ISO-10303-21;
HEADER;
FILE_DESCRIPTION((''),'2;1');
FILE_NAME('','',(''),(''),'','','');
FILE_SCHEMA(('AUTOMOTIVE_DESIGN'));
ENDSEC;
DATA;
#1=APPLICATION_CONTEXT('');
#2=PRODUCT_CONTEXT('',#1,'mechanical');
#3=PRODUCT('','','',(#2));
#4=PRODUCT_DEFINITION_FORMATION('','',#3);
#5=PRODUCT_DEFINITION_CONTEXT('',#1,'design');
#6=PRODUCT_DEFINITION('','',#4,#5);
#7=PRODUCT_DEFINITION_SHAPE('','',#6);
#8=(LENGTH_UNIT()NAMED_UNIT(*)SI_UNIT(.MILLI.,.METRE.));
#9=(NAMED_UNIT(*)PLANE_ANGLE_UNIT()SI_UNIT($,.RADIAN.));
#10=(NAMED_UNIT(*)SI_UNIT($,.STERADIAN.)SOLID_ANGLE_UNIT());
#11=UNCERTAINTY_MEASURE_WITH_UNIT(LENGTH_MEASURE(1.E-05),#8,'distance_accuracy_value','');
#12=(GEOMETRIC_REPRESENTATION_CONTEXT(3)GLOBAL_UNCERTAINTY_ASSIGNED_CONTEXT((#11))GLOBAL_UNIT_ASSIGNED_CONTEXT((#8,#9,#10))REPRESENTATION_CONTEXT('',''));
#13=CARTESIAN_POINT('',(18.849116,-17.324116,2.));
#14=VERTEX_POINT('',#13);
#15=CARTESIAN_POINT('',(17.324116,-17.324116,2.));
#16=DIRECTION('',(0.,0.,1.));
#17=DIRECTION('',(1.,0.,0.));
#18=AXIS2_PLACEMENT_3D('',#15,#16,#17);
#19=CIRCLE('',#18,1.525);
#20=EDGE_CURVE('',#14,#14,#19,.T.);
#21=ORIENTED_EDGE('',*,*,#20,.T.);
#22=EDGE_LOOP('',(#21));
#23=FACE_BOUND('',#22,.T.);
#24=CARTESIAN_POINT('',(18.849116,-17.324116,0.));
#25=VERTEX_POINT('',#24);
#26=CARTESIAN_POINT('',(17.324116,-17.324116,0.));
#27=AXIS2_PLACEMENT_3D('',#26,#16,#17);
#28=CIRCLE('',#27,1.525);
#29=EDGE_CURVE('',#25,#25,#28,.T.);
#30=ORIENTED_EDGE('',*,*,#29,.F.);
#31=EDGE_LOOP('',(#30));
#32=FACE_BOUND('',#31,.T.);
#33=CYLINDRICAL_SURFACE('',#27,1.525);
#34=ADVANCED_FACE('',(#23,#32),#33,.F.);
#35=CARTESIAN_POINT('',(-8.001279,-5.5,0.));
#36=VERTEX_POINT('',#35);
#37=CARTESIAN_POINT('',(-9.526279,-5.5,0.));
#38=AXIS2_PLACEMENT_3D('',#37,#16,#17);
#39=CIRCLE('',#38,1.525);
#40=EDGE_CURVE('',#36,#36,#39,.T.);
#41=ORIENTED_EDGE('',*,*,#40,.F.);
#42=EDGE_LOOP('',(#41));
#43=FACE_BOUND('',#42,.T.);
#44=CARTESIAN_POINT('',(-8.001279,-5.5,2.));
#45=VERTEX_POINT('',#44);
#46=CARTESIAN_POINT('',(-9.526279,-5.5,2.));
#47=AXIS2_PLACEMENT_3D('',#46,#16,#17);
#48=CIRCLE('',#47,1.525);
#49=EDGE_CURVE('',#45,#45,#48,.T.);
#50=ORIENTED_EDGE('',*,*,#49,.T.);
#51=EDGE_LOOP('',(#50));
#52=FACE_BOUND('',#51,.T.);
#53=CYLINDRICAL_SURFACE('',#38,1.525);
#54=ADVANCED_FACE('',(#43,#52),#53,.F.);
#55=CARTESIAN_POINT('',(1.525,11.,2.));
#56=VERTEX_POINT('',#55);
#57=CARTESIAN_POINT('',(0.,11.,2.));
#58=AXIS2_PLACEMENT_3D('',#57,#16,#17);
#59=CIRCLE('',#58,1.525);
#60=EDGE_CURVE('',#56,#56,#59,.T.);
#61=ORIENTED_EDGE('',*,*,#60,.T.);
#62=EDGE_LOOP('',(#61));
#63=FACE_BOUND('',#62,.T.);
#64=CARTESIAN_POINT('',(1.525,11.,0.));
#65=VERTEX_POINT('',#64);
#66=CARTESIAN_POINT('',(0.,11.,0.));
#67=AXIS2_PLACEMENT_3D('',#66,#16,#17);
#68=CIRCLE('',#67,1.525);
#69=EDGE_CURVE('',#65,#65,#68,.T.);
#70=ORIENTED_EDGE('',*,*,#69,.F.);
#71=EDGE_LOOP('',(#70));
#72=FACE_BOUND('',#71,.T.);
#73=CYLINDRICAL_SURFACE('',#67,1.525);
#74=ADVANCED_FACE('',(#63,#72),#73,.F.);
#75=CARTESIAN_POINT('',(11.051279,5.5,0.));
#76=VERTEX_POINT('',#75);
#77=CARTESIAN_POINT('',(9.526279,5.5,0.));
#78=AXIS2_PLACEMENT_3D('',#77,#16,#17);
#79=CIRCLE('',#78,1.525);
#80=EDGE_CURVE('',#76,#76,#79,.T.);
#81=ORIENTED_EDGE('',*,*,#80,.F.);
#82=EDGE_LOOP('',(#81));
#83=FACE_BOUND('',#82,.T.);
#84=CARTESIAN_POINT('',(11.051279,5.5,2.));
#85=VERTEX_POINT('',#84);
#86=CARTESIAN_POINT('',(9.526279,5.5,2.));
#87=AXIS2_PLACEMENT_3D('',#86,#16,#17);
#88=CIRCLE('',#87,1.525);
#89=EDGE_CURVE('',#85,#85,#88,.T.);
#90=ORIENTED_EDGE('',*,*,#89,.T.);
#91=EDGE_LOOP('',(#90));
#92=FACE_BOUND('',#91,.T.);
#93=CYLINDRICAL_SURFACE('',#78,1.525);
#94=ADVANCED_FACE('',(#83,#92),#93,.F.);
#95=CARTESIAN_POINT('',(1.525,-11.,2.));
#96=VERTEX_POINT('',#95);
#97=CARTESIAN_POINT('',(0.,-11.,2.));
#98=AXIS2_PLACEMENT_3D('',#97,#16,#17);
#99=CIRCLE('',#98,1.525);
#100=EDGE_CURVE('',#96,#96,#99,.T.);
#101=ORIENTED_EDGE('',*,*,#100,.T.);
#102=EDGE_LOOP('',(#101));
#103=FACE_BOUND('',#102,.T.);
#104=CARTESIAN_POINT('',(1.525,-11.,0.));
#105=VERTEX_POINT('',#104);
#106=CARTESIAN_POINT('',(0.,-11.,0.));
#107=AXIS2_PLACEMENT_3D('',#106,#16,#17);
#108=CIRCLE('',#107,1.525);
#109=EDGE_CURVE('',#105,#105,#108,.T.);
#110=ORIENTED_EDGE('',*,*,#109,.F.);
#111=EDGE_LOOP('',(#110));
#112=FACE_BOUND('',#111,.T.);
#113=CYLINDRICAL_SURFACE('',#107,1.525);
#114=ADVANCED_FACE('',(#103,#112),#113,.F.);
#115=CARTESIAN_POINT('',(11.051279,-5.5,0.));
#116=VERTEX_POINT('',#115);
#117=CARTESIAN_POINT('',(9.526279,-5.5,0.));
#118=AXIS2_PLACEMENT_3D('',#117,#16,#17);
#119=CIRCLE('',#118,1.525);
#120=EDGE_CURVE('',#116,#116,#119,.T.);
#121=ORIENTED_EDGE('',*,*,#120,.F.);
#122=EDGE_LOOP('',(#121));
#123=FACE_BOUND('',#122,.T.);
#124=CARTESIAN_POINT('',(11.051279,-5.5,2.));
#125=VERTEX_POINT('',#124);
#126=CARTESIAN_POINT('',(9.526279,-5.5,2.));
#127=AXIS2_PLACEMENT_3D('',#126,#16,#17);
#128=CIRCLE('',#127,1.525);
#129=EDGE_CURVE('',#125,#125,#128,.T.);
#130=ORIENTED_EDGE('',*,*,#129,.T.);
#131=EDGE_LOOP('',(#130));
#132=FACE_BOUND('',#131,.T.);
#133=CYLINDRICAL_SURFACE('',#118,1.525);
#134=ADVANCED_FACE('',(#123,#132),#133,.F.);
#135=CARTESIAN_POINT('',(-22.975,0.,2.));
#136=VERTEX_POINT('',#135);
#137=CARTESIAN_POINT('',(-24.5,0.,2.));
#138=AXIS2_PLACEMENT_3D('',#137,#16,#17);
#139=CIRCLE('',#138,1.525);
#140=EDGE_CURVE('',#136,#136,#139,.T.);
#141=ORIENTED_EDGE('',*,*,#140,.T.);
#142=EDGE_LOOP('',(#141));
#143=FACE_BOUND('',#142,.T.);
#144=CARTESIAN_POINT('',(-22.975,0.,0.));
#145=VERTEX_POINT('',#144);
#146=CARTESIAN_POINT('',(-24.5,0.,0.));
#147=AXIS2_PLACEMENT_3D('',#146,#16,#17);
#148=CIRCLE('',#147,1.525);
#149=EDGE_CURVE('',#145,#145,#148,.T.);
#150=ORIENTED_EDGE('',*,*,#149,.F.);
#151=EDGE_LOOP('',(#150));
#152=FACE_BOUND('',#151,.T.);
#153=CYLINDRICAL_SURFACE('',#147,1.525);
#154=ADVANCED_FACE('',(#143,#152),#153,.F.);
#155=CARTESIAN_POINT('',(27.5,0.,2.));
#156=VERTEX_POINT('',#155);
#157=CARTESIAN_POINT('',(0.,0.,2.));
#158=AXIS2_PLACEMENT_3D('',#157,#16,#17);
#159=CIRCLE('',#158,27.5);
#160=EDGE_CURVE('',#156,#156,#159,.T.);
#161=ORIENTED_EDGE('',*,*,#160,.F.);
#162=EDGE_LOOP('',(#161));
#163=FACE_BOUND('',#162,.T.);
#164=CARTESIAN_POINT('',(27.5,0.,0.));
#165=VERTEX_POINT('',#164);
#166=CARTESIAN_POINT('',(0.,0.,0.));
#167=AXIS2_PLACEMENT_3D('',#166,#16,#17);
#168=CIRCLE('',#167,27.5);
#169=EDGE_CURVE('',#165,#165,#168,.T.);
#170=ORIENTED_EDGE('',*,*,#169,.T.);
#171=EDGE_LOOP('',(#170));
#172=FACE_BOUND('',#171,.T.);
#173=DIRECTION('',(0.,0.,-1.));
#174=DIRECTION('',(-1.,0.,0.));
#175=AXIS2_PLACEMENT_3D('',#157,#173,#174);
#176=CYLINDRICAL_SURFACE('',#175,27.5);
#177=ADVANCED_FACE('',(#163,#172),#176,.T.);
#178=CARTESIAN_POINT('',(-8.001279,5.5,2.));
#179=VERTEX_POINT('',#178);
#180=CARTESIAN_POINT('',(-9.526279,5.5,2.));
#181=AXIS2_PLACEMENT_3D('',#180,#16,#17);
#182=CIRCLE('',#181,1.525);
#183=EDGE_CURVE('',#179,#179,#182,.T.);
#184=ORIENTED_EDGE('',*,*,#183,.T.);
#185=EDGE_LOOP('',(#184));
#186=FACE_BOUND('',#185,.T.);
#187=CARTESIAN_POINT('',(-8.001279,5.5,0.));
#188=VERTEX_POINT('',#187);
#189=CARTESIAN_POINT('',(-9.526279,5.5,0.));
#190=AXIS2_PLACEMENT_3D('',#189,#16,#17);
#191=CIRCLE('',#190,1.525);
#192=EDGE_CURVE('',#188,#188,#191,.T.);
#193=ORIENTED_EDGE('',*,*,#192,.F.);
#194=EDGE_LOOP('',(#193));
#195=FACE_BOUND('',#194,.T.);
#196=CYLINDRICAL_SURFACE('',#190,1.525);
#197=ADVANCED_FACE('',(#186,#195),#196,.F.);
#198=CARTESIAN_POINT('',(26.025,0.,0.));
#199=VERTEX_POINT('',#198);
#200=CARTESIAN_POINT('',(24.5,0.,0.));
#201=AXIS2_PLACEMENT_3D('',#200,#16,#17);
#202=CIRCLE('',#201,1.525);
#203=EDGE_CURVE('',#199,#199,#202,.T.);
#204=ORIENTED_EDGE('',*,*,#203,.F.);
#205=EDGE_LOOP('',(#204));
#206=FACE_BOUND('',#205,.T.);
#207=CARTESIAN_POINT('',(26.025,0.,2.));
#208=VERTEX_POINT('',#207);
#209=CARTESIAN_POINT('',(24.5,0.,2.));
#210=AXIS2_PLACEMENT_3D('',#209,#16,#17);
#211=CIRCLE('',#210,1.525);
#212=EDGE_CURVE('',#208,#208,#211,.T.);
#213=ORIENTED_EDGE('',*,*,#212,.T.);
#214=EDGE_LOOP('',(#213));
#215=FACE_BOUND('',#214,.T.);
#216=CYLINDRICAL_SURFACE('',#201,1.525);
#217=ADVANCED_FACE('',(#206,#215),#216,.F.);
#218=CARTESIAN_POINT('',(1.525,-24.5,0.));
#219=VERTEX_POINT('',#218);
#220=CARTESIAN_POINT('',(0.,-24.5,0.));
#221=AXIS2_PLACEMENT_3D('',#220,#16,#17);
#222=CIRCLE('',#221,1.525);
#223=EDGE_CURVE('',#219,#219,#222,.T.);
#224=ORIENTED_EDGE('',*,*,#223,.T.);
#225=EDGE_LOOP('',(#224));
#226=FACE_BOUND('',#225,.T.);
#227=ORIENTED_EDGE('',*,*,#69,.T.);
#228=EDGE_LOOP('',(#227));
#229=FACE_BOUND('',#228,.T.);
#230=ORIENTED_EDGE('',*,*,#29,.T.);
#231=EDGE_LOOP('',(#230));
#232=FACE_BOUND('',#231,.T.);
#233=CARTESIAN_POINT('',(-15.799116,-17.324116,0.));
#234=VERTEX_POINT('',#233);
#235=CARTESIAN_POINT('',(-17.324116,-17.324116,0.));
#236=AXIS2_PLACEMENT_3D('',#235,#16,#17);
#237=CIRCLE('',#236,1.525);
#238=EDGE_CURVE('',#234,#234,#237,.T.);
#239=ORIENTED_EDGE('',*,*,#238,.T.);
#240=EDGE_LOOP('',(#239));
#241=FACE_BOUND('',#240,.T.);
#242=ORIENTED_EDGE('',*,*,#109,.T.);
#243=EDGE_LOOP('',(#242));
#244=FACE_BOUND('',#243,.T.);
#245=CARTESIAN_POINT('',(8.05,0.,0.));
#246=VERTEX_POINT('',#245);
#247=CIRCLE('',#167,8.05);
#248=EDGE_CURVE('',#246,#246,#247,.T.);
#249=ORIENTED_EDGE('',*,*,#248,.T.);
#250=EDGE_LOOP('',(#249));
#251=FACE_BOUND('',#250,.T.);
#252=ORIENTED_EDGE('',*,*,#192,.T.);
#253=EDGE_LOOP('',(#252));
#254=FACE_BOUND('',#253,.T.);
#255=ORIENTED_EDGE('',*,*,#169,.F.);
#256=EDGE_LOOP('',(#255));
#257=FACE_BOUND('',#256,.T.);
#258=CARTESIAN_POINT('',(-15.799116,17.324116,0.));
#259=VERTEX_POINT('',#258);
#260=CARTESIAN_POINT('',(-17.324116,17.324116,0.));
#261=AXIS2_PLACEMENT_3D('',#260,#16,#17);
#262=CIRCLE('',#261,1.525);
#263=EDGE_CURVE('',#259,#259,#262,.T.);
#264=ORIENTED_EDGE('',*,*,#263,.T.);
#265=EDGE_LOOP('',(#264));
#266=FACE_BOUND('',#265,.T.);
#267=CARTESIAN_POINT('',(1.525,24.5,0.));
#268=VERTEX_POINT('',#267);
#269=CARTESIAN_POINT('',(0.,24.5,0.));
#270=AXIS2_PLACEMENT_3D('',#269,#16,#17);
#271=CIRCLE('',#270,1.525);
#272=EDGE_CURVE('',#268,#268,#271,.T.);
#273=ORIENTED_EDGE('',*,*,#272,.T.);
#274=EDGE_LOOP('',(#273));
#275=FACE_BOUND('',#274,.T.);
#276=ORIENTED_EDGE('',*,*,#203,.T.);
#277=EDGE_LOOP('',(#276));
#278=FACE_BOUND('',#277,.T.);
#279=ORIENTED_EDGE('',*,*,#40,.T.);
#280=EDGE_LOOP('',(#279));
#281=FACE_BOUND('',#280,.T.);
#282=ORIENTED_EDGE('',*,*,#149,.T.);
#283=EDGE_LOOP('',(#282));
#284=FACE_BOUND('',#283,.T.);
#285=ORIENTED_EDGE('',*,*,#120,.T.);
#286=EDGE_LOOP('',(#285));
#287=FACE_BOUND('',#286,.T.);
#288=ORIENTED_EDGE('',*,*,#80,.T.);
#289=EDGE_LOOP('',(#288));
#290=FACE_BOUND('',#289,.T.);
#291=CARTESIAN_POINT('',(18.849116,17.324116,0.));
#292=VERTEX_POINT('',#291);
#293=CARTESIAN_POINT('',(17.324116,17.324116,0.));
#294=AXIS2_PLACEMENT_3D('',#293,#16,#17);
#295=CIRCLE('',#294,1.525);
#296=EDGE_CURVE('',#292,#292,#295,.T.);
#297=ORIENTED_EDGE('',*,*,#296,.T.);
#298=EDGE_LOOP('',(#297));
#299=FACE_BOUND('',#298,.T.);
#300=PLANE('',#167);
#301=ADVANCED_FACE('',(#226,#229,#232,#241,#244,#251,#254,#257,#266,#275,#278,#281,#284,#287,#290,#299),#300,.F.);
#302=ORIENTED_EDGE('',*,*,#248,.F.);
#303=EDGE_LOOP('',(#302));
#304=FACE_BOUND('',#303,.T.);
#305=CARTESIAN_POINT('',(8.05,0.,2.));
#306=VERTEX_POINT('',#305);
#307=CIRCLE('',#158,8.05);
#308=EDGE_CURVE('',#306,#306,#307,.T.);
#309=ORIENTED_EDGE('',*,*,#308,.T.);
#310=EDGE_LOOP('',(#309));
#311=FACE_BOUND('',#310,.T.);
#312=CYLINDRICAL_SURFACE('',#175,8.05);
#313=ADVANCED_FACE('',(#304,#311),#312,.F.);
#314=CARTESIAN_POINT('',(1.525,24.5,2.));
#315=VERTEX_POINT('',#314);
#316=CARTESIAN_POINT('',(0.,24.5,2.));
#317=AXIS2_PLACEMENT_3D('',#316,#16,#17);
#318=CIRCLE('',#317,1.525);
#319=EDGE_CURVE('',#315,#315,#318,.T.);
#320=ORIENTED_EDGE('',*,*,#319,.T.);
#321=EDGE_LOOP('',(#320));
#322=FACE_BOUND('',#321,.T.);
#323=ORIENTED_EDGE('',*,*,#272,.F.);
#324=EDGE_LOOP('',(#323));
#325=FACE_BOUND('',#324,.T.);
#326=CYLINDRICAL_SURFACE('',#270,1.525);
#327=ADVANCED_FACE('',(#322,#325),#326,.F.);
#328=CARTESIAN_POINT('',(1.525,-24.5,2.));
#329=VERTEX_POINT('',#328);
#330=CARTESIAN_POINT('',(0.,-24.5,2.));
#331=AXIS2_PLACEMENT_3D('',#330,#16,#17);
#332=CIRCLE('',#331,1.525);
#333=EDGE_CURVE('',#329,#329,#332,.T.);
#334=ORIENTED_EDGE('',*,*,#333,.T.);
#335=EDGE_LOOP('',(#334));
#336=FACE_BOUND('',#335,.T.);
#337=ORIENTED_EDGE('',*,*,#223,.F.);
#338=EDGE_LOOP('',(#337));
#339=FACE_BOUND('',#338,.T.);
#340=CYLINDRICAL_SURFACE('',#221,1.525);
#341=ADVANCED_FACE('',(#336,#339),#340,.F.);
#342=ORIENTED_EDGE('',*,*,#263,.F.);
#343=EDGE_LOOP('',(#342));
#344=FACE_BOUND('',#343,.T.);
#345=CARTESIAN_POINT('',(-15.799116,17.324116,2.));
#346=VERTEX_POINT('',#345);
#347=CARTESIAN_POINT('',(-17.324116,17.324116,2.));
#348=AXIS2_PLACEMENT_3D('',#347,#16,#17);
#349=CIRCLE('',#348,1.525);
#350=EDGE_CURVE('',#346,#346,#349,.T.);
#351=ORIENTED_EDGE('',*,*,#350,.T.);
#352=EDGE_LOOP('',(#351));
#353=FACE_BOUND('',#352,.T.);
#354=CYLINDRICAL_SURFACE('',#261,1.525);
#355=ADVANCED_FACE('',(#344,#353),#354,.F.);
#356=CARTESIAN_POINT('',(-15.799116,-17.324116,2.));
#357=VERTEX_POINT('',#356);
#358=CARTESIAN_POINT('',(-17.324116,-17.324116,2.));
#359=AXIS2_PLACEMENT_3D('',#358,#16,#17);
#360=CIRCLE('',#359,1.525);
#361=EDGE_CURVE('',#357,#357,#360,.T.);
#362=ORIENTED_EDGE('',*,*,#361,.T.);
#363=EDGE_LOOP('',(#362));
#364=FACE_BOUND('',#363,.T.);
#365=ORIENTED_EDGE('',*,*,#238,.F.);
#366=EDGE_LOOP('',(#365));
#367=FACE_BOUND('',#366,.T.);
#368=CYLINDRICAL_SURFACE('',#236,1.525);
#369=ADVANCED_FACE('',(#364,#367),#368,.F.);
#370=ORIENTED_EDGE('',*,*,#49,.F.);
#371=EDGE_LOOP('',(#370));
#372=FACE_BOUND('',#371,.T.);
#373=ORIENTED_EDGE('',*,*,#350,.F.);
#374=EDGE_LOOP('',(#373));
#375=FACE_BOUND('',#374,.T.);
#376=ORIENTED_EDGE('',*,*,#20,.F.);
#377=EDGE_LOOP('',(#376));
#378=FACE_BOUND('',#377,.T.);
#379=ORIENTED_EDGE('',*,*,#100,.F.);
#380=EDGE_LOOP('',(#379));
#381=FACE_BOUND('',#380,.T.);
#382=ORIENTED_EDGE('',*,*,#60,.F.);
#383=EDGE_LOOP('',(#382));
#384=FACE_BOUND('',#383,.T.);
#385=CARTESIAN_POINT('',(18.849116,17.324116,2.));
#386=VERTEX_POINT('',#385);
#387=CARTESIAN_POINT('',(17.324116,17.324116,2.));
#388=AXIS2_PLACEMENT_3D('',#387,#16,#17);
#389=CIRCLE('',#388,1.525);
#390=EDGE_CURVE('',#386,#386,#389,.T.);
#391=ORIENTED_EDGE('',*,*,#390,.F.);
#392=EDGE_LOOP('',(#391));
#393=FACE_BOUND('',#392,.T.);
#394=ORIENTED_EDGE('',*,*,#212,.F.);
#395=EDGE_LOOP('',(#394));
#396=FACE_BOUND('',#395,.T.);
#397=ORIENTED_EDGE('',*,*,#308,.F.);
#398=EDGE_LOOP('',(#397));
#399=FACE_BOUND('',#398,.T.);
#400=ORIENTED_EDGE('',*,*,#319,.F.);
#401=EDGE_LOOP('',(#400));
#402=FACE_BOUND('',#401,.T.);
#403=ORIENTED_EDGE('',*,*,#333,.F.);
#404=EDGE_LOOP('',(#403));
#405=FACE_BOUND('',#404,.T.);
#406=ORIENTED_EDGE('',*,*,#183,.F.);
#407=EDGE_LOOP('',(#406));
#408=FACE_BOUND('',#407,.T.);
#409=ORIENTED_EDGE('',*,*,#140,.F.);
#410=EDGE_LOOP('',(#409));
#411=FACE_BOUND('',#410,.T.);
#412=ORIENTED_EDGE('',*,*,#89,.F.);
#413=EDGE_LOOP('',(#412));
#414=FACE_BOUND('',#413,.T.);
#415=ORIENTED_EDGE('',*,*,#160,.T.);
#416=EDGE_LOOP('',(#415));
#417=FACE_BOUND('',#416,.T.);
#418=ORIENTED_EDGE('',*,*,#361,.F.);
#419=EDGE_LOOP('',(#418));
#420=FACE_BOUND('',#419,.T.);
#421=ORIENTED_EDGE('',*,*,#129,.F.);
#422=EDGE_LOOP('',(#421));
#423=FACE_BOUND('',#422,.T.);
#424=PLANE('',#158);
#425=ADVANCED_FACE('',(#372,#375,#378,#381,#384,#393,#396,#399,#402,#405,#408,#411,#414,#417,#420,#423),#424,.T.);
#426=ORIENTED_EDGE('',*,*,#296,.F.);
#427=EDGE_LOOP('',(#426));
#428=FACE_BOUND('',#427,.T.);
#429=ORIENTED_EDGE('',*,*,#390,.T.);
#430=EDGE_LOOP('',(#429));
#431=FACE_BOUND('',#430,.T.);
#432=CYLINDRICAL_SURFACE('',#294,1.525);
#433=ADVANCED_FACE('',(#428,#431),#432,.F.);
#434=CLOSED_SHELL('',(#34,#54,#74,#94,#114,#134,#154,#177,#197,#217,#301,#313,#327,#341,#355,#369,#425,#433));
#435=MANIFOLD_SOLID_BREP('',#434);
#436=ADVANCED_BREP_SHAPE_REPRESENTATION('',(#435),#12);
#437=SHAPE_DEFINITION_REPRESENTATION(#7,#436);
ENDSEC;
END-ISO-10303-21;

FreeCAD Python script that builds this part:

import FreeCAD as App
import Part
import Sketcher
from FreeCAD import Vector

doc = App.newDocument("Part")
body = doc.addObject("PartDesign::Body", "Body")

# Sketch on XY plane
sketch1 = body.newObject("Sketcher::SketchObject", "Sketch")
sketch1.AttachmentSupport = (doc.getObject("XY_Plane"), [""])
sketch1.MapMode = "FlatFace"
sketch1.addGeometry(Part.Circle(Vector(0, 0, 0), Vector(0, 0, 1), 28), False)
sketch1.addGeometry(Part.Circle(Vector(0, 0, 0), Vector(0, 0, 1), 8), False)
sketch1.addConstraint(Sketcher.Constraint("Coincident", 0, 3, -1, 1))
sketch1.addConstraint(Sketcher.Constraint("Coincident", 1, 3, -1, 1))
sketch1.addConstraint(Sketcher.Constraint("Diameter", 0, 55.0))
sketch1.addConstraint(Sketcher.Constraint("Diameter", 1, 16.1))
pad1 = body.newObject("PartDesign::Pad", "Pad")
pad1.Profile = sketch1
pad1.Length = 2

# Sketch on XY plane
sketch2 = body.newObject("Sketcher::SketchObject", "Sketch001")
sketch2.AttachmentSupport = (doc.getObject("XY_Plane"), [""])
sketch2.MapMode = "FlatFace"
sketch2.AttachmentOffset = App.Placement(Vector(0, 0, 2), App.Rotation())
sketch2.addGeometry(Part.Circle(Vector(0, 11, 0), Vector(0, 0, 1), 1.5), False)
sketch2.addGeometry(Part.Circle(Vector(9.5, 5.5, 0), Vector(0, 0, 1), 1.5), False)
sketch2.addGeometry(Part.Circle(Vector(9.5, -5.5, 0), Vector(0, 0, 1), 1.5), False)
sketch2.addGeometry(Part.Circle(Vector(0, -11, 0), Vector(0, 0, 1), 1.5), False)
sketch2.addGeometry(Part.Circle(Vector(-9.5, -5.5, 0), Vector(0, 0, 1), 1.5), False)
sketch2.addGeometry(Part.Circle(Vector(-9.5, 5.5, 0), Vector(0, 0, 1), 1.5), False)
sketch2.addConstraint(Sketcher.Constraint("Equal", 0, 1))
sketch2.addConstraint(Sketcher.Constraint("Equal", 1, 2))
sketch2.addConstraint(Sketcher.Constraint("Equal", 2, 3))
sketch2.addConstraint(Sketcher.Constraint("Equal", 3, 4))
sketch2.addConstraint(Sketcher.Constraint("Equal", 4, 5))
sketch2.addConstraint(Sketcher.Constraint("Symmetric", 0, 3, 3, 3, -1, 1))
sketch2.addConstraint(Sketcher.Constraint("Symmetric", 1, 3, 4, 3, -1, 1))
sketch2.addConstraint(Sketcher.Constraint("Symmetric", 2, 3, 5, 3, -1, 1))
sketch2.addConstraint(Sketcher.Constraint("Symmetric", 2, 3, 4, 3, -2))
sketch2.addConstraint(Sketcher.Constraint("PointOnObject", 0, 3, -2))
sketch2.addConstraint(Sketcher.Constraint("Diameter", 0, 3.05))
sketch2.addConstraint(Sketcher.Constraint("DistanceY", -1, 1, 0, 3, 11.0))
sketch2.addConstraint(Sketcher.Constraint("DistanceY", 2, 3, 1, 3, 11.0))
sketch2.addConstraint(Sketcher.Constraint("DistanceX", -1, 1, 1, 3, 9.526279))
pocket1 = body.newObject("PartDesign::Pocket", "Pocket")
pocket1.Profile = sketch2
pocket1.Length = 2

# Sketch on XY plane
sketch3 = body.newObject("Sketcher::SketchObject", "Sketch002")
sketch3.AttachmentSupport = (doc.getObject("XY_Plane"), [""])
sketch3.MapMode = "FlatFace"
sketch3.AttachmentOffset = App.Placement(Vector(0, 0, 2), App.Rotation())
sketch3.addGeometry(Part.Circle(Vector(0, 24.5, 0), Vector(0, 0, 1), 1.5), False)
sketch3.addGeometry(Part.Circle(Vector(17.3, 17.3, 0), Vector(0, 0, 1), 1.5), False)
sketch3.addGeometry(Part.Circle(Vector(24.5, 0, 0), Vector(0, 0, 1), 1.5), False)
sketch3.addGeometry(Part.Circle(Vector(17.3, -17.3, 0), Vector(0, 0, 1), 1.5), False)
sketch3.addGeometry(Part.Circle(Vector(0, -24.5, 0), Vector(0, 0, 1), 1.5), False)
sketch3.addGeometry(Part.Circle(Vector(-17.3, -17.3, 0), Vector(0, 0, 1), 1.5), False)
sketch3.addGeometry(Part.Circle(Vector(-24.5, 0, 0), Vector(0, 0, 1), 1.5), False)
sketch3.addGeometry(Part.Circle(Vector(-17.3, 17.3, 0), Vector(0, 0, 1), 1.5), False)
sketch3.addConstraint(Sketcher.Constraint("Equal", 0, 1))
sketch3.addConstraint(Sketcher.Constraint("Equal", 1, 2))
sketch3.addConstraint(Sketcher.Constraint("Equal", 2, 3))
sketch3.addConstraint(Sketcher.Constraint("Equal", 3, 4))
sketch3.addConstraint(Sketcher.Constraint("Equal", 4, 5))
sketch3.addConstraint(Sketcher.Constraint("Equal", 5, 6))
sketch3.addConstraint(Sketcher.Constraint("Equal", 6, 7))
sketch3.addConstraint(Sketcher.Constraint("Symmetric", 0, 3, 4, 3, -1, 1))
sketch3.addConstraint(Sketcher.Constraint("Symmetric", 1, 3, 5, 3, -1, 1))
sketch3.addConstraint(Sketcher.Constraint("Symmetric", 2, 3, 6, 3, -1, 1))
sketch3.addConstraint(Sketcher.Constraint("Symmetric", 3, 3, 7, 3, -1, 1))
sketch3.addConstraint(Sketcher.Constraint("Symmetric", 3, 3, 5, 3, -2))
sketch3.addConstraint(Sketcher.Constraint("PointOnObject", 0, 3, -2))
sketch3.addConstraint(Sketcher.Constraint("PointOnObject", 2, 3, -1))
sketch3.addConstraint(Sketcher.Constraint("Diameter", 0, 3.05))
sketch3.addConstraint(Sketcher.Constraint("DistanceY", 4, 3, 0, 3, 49.0))
sketch3.addConstraint(Sketcher.Constraint("DistanceX", -1, 1, 2, 3, 24.5))
sketch3.addConstraint(Sketcher.Constraint("DistanceX", -1, 1, 1, 3, 17.324116))
sketch3.addConstraint(Sketcher.Constraint("DistanceY", -1, 1, 1, 3, 17.324116))
pocket2 = body.newObject("PartDesign::Pocket", "Pocket001")
pocket2.Profile = sketch3
pocket2.Length = 2

doc.recompute()
